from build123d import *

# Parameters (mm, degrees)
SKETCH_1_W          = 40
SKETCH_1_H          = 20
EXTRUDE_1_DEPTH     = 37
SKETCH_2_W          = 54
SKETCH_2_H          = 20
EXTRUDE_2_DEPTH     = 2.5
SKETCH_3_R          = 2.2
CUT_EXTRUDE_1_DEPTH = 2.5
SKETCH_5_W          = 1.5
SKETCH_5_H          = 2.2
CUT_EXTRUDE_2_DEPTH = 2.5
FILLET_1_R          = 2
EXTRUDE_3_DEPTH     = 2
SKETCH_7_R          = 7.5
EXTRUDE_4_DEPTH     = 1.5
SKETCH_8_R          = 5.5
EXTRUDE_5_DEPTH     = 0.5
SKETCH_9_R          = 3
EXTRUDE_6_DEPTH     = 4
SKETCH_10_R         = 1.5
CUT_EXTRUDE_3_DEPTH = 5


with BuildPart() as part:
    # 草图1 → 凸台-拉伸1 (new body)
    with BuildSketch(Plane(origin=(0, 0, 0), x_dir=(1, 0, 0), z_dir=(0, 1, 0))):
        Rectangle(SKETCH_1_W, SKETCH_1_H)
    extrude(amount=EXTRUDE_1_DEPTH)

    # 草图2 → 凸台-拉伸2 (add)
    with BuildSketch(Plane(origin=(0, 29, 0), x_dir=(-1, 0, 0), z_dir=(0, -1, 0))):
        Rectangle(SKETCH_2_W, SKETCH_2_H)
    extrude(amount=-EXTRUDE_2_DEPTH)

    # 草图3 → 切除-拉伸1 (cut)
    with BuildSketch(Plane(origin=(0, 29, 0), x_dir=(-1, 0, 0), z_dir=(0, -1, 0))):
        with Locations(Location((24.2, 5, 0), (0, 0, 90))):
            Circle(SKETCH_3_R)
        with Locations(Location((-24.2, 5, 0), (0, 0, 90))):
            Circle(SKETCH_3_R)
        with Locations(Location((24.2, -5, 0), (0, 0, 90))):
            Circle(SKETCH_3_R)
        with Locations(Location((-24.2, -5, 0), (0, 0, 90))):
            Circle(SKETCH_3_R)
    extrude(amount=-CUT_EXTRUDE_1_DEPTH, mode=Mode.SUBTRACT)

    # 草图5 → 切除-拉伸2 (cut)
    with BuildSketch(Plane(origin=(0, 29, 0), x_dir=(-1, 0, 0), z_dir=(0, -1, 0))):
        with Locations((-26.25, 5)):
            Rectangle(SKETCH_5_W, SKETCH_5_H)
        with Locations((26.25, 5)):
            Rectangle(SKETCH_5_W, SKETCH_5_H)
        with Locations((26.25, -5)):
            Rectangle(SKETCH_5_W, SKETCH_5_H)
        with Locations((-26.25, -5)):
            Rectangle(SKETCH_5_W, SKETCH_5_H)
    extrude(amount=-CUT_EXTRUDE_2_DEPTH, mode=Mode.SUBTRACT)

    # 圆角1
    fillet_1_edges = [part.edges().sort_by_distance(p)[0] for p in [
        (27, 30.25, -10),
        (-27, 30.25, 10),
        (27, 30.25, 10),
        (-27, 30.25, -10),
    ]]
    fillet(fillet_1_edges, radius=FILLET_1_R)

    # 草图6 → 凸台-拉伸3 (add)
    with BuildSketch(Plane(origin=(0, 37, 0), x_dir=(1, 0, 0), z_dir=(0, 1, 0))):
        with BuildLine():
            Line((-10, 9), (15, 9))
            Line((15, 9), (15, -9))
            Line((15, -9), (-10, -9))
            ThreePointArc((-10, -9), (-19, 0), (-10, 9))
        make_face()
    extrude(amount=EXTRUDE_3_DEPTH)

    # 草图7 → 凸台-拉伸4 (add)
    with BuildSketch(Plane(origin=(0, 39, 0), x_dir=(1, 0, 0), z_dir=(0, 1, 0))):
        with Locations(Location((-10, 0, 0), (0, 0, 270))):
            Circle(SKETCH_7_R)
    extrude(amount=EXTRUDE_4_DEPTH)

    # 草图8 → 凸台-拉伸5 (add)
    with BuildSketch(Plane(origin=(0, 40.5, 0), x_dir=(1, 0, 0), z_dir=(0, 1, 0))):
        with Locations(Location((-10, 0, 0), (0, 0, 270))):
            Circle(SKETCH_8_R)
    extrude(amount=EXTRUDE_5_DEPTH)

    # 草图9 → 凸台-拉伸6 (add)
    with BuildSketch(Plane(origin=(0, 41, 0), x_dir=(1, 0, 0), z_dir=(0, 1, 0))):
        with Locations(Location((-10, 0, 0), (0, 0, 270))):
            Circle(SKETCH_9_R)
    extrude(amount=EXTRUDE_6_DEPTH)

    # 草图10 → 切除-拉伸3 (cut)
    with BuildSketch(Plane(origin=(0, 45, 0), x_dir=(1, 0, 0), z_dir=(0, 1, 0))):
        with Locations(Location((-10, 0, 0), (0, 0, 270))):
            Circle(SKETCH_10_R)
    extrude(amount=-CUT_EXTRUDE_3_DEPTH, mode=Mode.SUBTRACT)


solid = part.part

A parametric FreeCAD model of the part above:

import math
import FreeCAD as App
import Part
import Sketcher

V = App.Vector
Q = App.Units.Quantity


def edges_at(feature, points):
    """Names of the edges that pass closest to the given points."""
    edges = feature.Shape.Edges
    near = lambda p: min(range(len(edges)), key=lambda i: edges[i].distToShape(Part.Vertex(*p))[0])
    return sorted({f"Edge{near(p) + 1}" for p in points})

doc = App.newDocument("Part")
body = doc.addObject("PartDesign::Body", "Body")

sketch1 = doc.addObject("Sketcher::SketchObject", "Sketch")
body.addObject(sketch1)
sketch1.AttachmentSupport = (doc.XZ_Plane, [""])
sketch1.MapMode = "FlatFace"
sketch1.addGeometry(Part.LineSegment(V(-20, -10, 0), V(-20, 10, 0)), False)
sketch1.addGeometry(Part.LineSegment(V(-20, 10, 0), V(20, 10, 0)), False)
sketch1.addGeometry(Part.LineSegment(V(20, 10, 0), V(20, -10, 0)), False)
sketch1.addGeometry(Part.LineSegment(V(20, -10, 0), V(-20, -10, 0)), False)
sketch1.addConstraint(Sketcher.Constraint("Coincident", 0, 2, 1, 1))
sketch1.addConstraint(Sketcher.Constraint("Coincident", 1, 2, 2, 1))
sketch1.addConstraint(Sketcher.Constraint("Coincident", 2, 2, 3, 1))
sketch1.addConstraint(Sketcher.Constraint("Coincident", 3, 2, 0, 1))
sketch1.addConstraint(Sketcher.Constraint("Vertical", 0))
sketch1.addConstraint(Sketcher.Constraint("Horizontal", 1))
sketch1.addConstraint(Sketcher.Constraint("Vertical", 2))
sketch1.addConstraint(Sketcher.Constraint("Horizontal", 3))
sketch1.addConstraint(Sketcher.Constraint("Symmetric", 0, 2, 2, 2, -1, 1))
sketch1.addConstraint(Sketcher.Constraint("DistanceX", 1, 1, 1, 2, Q("40 mm")))
sketch1.addConstraint(Sketcher.Constraint("DistanceY", 0, 1, 0, 2, Q("20 mm")))
pad1 = doc.addObject("PartDesign::Pad", "Pad")
body.addObject(pad1)
pad1.Profile = sketch1
pad1.Length = 37
pad1.Reversed = True

sketch2 = doc.addObject("Sketcher::SketchObject", "Sketch001")
body.addObject(sketch2)
sketch2.AttachmentSupport = (doc.XZ_Plane, [""])
sketch2.MapMode = "FlatFace"
sketch2.AttachmentOffset = App.Placement(V(0, 0, -29), App.Rotation())
sketch2.addGeometry(Part.LineSegment(V(27, -10, 0), V(27, 10, 0)), False)
sketch2.addGeometry(Part.LineSegment(V(27, 10, 0), V(-27, 10, 0)), False)
sketch2.addGeometry(Part.LineSegment(V(-27, 10, 0), V(-27, -10, 0)), False)
sketch2.addGeometry(Part.LineSegment(V(-27, -10, 0), V(27, -10, 0)), False)
sketch2.addConstraint(Sketcher.Constraint("Coincident", 0, 2, 1, 1))
sketch2.addConstraint(Sketcher.Constraint("Coincident", 1, 2, 2, 1))
sketch2.addConstraint(Sketcher.Constraint("Coincident", 2, 2, 3, 1))
sketch2.addConstraint(Sketcher.Constraint("Coincident", 3, 2, 0, 1))
sketch2.addConstraint(Sketcher.Constraint("Vertical", 0))
sketch2.addConstraint(Sketcher.Constraint("Horizontal", 1))
sketch2.addConstraint(Sketcher.Constraint("Vertical", 2))
sketch2.addConstraint(Sketcher.Constraint("Horizontal", 3))
sketch2.addConstraint(Sketcher.Constraint("Symmetric", 0, 2, 2, 2, -1, 1))
sketch2.addConstraint(Sketcher.Constraint("DistanceX", 1, 2, 1, 1, Q("54 mm")))
sketch2.addConstraint(Sketcher.Constraint("DistanceY", 0, 1, 0, 2, Q("20 mm")))
pad2 = doc.addObject("PartDesign::Pad", "Pad001")
body.addObject(pad2)
pad2.Profile = sketch2
pad2.Length = 2.5
pad2.Reversed = True

sketch3 = doc.addObject("Sketcher::SketchObject", "Sketch002")
body.addObject(sketch3)
sketch3.AttachmentSupport = (doc.XZ_Plane, [""])
sketch3.MapMode = "FlatFace"
sketch3.AttachmentOffset = App.Placement(V(0, 0, -29), App.Rotation())
sketch3.addGeometry(Part.Circle(V(-24.2, -5, 0), V(0, 0, 1), 2.2), False)
sketch3.addGeometry(Part.Circle(V(24.2, -5, 0), V(0, 0, 1), 2.2), False)
sketch3.addGeometry(Part.Circle(V(-24.2, 5, 0), V(0, 0, 1), 2.2), False)
sketch3.addGeometry(Part.Circle(V(24.2, 5, 0), V(0, 0, 1), 2.2), False)
sketch3.addConstraint(Sketcher.Constraint("Equal", 0, 1))
sketch3.addConstraint(Sketcher.Constraint("Equal", 1, 2))
sketch3.addConstraint(Sketcher.Constraint("Equal", 2, 3))
sketch3.addConstraint(Sketcher.Constraint("Symmetric", 1, 3, 2, 3, -1, 1))
sketch3.addConstraint(Sketcher.Constraint("Symmetric", 0, 3, 3, 3, -1, 1))
sketch3.addConstraint(Sketcher.Constraint("Symmetric", 0, 3, 1, 3, -2))
sketch3.addConstraint(Sketcher.Constraint("Diameter", 0, Q("4.4 mm")))
sketch3.addConstraint(Sketcher.Constraint("DistanceY", 0, 3, -1, 1, Q("5 mm")))
sketch3.addConstraint(Sketcher.Constraint("DistanceX", 0, 3, -1, 1, Q("24.2 mm")))
pocket1 = doc.addObject("PartDesign::Pocket", "Pocket")
body.addObject(pocket1)
pocket1.Profile = sketch3
pocket1.Length = 2.5

sketch4 = doc.addObject("Sketcher::SketchObject", "Sketch003")
body.addObject(sketch4)
sketch4.AttachmentSupport = (doc.XZ_Plane, [""])
sketch4.MapMode = "FlatFace"
sketch4.AttachmentOffset = App.Placement(V(0, 0, -29), App.Rotation())
sketch4.addGeometry(Part.LineSegment(V(27, -6.1, 0), V(27, -3.9, 0)), False)
sketch4.addGeometry(Part.LineSegment(V(27, -3.9, 0), V(25.5, -3.9, 0)), False)
sketch4.addGeometry(Part.LineSegment(V(25.5, -3.9, 0), V(25.5, -6.1, 0)), False)
sketch4.addGeometry(Part.LineSegment(V(25.5, -6.1, 0), V(27, -6.1, 0)), False)
sketch4.addGeometry(Part.LineSegment(V(-25.5, -6.1, 0), V(-25.5, -3.9, 0)), False)
sketch4.addGeometry(Part.LineSegment(V(-25.5, -3.9, 0), V(-27, -3.9, 0)), False)
sketch4.addGeometry(Part.LineSegment(V(-27, -3.9, 0), V(-27, -6.1, 0)), False)
sketch4.addGeometry(Part.LineSegment(V(-27, -6.1, 0), V(-25.5, -6.1, 0)), False)
sketch4.addGeometry(Part.LineSegment(V(-25.5, 3.9, 0), V(-25.5, 6.1, 0)), False)
sketch4.addGeometry(Part.LineSegment(V(-25.5, 6.1, 0), V(-27, 6.1, 0)), False)
sketch4.addGeometry(Part.LineSegment(V(-27, 6.1, 0), V(-27, 3.9, 0)), False)
sketch4.addGeometry(Part.LineSegment(V(-27, 3.9, 0), V(-25.5, 3.9, 0)), False)
sketch4.addGeometry(Part.LineSegment(V(27, 3.9, 0), V(27, 6.1, 0)), False)
sketch4.addGeometry(Part.LineSegment(V(27, 6.1, 0), V(25.5, 6.1, 0)), False)
sketch4.addGeometry(Part.LineSegment(V(25.5, 6.1, 0), V(25.5, 3.9, 0)), False)
sketch4.addGeometry(Part.LineSegment(V(25.5, 3.9, 0), V(27, 3.9, 0)), False)
sketch4.addConstraint(Sketcher.Constraint("Coincident", 0, 2, 1, 1))
sketch4.addConstraint(Sketcher.Constraint("Coincident", 1, 2, 2, 1))
sketch4.addConstraint(Sketcher.Constraint("Coincident", 2, 2, 3, 1))
sketch4.addConstraint(Sketcher.Constraint("Coincident", 3, 2, 0, 1))
sketch4.addConstraint(Sketcher.Constraint("Coincident", 4, 2, 5, 1))
sketch4.addConstraint(Sketcher.Constraint("Coincident", 5, 2, 6, 1))
sketch4.addConstraint(Sketcher.Constraint("Coincident", 6, 2, 7, 1))
sketch4.addConstraint(Sketcher.Constraint("Coincident", 7, 2, 4, 1))
sketch4.addConstraint(Sketcher.Constraint("Coincident", 8, 2, 9, 1))
sketch4.addConstraint(Sketcher.Constraint("Coincident", 9, 2, 10, 1))
sketch4.addConstraint(Sketcher.Constraint("Coincident", 10, 2, 11, 1))
sketch4.addConstraint(Sketcher.Constraint("Coincident", 11, 2, 8, 1))
sketch4.addConstraint(Sketcher.Constraint("Coincident", 12, 2, 13, 1))
sketch4.addConstraint(Sketcher.Constraint("Coincident", 13, 2, 14, 1))
sketch4.addConstraint(Sketcher.Constraint("Coincident", 14, 2, 15, 1))
sketch4.addConstraint(Sketcher.Constraint("Coincident", 15, 2, 12, 1))
sketch4.addConstraint(Sketcher.Constraint("Vertical", 0))
sketch4.addConstraint(Sketcher.Constraint("Horizontal", 1))
sketch4.addConstraint(Sketcher.Constraint("Vertical", 2))
sketch4.addConstraint(Sketcher.Constraint("Horizontal", 3))
sketch4.addConstraint(Sketcher.Constraint("Vertical", 4))
sketch4.addConstraint(Sketcher.Constraint("Horizontal", 5))
sketch4.addConstraint(Sketcher.Constraint("Vertical", 6))
sketch4.addConstraint(Sketcher.Constraint("Horizontal", 7))
sketch4.addConstraint(Sketcher.Constraint("Vertical", 8))
sketch4.addConstraint(Sketcher.Constraint("Horizontal", 9))
sketch4.addConstraint(Sketcher.Constraint("Vertical", 10))
sketch4.addConstraint(Sketcher.Constraint("Horizontal", 11))
sketch4.addConstraint(Sketcher.Constraint("Vertical", 12))
sketch4.addConstraint(Sketcher.Constraint("Horizontal", 13))
sketch4.addConstraint(Sketcher.Constraint("Vertical", 14))
sketch4.addConstraint(Sketcher.Constraint("Horizontal", 15))
sketch4.addConstraint(Sketcher.Constraint("Symmetric", 2, 2, 8, 2, -1, 1))
sketch4.addConstraint(Sketcher.Constraint("Symmetric", 0, 2, 10, 2, -1, 1))
sketch4.addConstraint(Sketcher.Constraint("Symmetric", 6, 2, 12, 2, -1, 1))
sketch4.addConstraint(Sketcher.Constraint("Symmetric", 4, 2, 14, 2, -1, 1))
sketch4.addConstraint(Sketcher.Constraint("Symmetric", 1, 2, 4, 2, -2))
sketch4.addConstraint(Sketcher.Constraint("Symmetric", 3, 2, 6, 2, -2))
sketch4.addConstraint(Sketcher.Constraint("DistanceX", 1, 2, 1, 1, Q("1.5 mm")))
sketch4.addConstraint(Sketcher.Constraint("DistanceY", 0, 1, 0, 2, Q("2.2 mm")))
sketch4.addConstraint(Sketcher.Constraint("DistanceX", -1, 1, 0, 2, Q("27 mm")))
sketch4.addConstraint(Sketcher.Constraint("DistanceY", 4, 2, 8, 2, Q("10 mm")))
pocket2 = doc.addObject("PartDesign::Pocket", "Pocket001")
body.addObject(pocket2)
pocket2.Profile = sketch4
pocket2.Length = 2.5
doc.recompute()

fillet = doc.addObject("PartDesign::Fillet", "Fillet")
body.addObject(fillet)
fillet.Base = (pocket2, edges_at(pocket2, [
    (27, 30.25, -10),
    (-27, 30.25, 10),
    (27, 30.25, 10),
    (-27, 30.25, -10),
]))
fillet.Radius = 2

sketch5 = doc.addObject("Sketcher::SketchObject", "Sketch004")
body.addObject(sketch5)
sketch5.AttachmentSupport = (doc.XZ_Plane, [""])
sketch5.MapMode = "FlatFace"
sketch5.AttachmentOffset = App.Placement(V(0, 0, -37), App.Rotation())
sketch5.addGeometry(Part.LineSegment(V(15, -9, 0), V(-10, -9, 0)), False)
sketch5.addGeometry(Part.ArcOfCircle(Part.Circle(V(-10, 0, 0), V(0, 0, 1), 9), math.radians(90), math.radians(270)), False)
sketch5.addGeometry(Part.LineSegment(V(-10, 9, 0), V(15, 9, 0)), False)
sketch5.addGeometry(Part.LineSegment(V(15, 9, 0), V(15, -9, 0)), False)
sketch5.addConstraint(Sketcher.Constraint("Tangent", 0, 2, 1, 2))
sketch5.addConstraint(Sketcher.Constraint("Tangent", 1, 1, 2, 1))
sketch5.addConstraint(Sketcher.Constraint("Coincident", 2, 2, 3, 1))
sketch5.addConstraint(Sketcher.Constraint("Coincident", 3, 2, 0, 1))
sketch5.addConstraint(Sketcher.Constraint("Horizontal", 0))
sketch5.addConstraint(Sketcher.Constraint("Horizontal", 2))
sketch5.addConstraint(Sketcher.Constraint("Vertical", 3))
sketch5.addConstraint(Sketcher.Constraint("PointOnObject", 1, 3, -1))
sketch5.addConstraint(Sketcher.Constraint("Radius", 1, Q("9 mm")))
sketch5.addConstraint(Sketcher.Constraint("DistanceX", 0, 2, 0, 1, Q("25 mm")))
sketch5.addConstraint(Sketcher.Constraint("DistanceX", 1, 3, -1, 1, Q("10 mm")))
pad3 = doc.addObject("PartDesign::Pad", "Pad002")
body.addObject(pad3)
pad3.Profile = sketch5
pad3.Length = 2
pad3.Reversed = True

sketch6 = doc.addObject("Sketcher::SketchObject", "Sketch005")
body.addObject(sketch6)
sketch6.AttachmentSupport = (doc.XZ_Plane, [""])
sketch6.MapMode = "FlatFace"
sketch6.AttachmentOffset = App.Placement(V(0, 0, -39), App.Rotation())
sketch6.addGeometry(Part.Circle(V(-10, 0, 0), V(0, 0, 1), 8), False)
sketch6.addConstraint(Sketcher.Constraint("PointOnObject", 0, 3, -1))
sketch6.addConstraint(Sketcher.Constraint("Diameter", 0, Q("15 mm")))
sketch6.addConstraint(Sketcher.Constraint("DistanceX", 0, 3, -1, 1, Q("10 mm")))
pad4 = doc.addObject("PartDesign::Pad", "Pad003")
body.addObject(pad4)
pad4.Profile = sketch6
pad4.Length = 1.5
pad4.Reversed = True

sketch7 = doc.addObject("Sketcher::SketchObject", "Sketch006")
body.addObject(sketch7)
sketch7.AttachmentSupport = (doc.XZ_Plane, [""])
sketch7.MapMode = "FlatFace"
sketch7.AttachmentOffset = App.Placement(V(0, 0, -40.5), App.Rotation())
sketch7.addGeometry(Part.Circle(V(-10, 0, 0), V(0, 0, 1), 6), False)
sketch7.addConstraint(Sketcher.Constraint("PointOnObject", 0, 3, -1))
sketch7.addConstraint(Sketcher.Constraint("Diameter", 0, Q("11 mm")))
sketch7.addConstraint(Sketcher.Constraint("DistanceX", 0, 3, -1, 1, Q("10 mm")))
pad5 = doc.addObject("PartDesign::Pad", "Pad004")
body.addObject(pad5)
pad5.Profile = sketch7
pad5.Length = 0.5
pad5.Reversed = True

sketch8 = doc.addObject("Sketcher::SketchObject", "Sketch007")
body.addObject(sketch8)
sketch8.AttachmentSupport = (doc.XZ_Plane, [""])
sketch8.MapMode = "FlatFace"
sketch8.AttachmentOffset = App.Placement(V(0, 0, -41), App.Rotation())
sketch8.addGeometry(Part.Circle(V(-10, 0, 0), V(0, 0, 1), 3), False)
sketch8.addConstraint(Sketcher.Constraint("PointOnObject", 0, 3, -1))
sketch8.addConstraint(Sketcher.Constraint("Diameter", 0, Q("6 mm")))
sketch8.addConstraint(Sketcher.Constraint("DistanceX", 0, 3, -1, 1, Q("10 mm")))
pad6 = doc.addObject("PartDesign::Pad", "Pad005")
body.addObject(pad6)
pad6.Profile = sketch8
pad6.Length = 4
pad6.Reversed = True

sketch9 = doc.addObject("Sketcher::SketchObject", "Sketch008")
body.addObject(sketch9)
sketch9.AttachmentSupport = (doc.XZ_Plane, [""])
sketch9.MapMode = "FlatFace"
sketch9.AttachmentOffset = App.Placement(V(0, 0, -45), App.Rotation())
sketch9.addGeometry(Part.Circle(V(-10, 0, 0), V(0, 0, 1), 1.5), False)
sketch9.addConstraint(Sketcher.Constraint("PointOnObject", 0, 3, -1))
sketch9.addConstraint(Sketcher.Constraint("Diameter", 0, Q("3 mm")))
sketch9.addConstraint(Sketcher.Constraint("DistanceX", 0, 3, -1, 1, Q("10 mm")))
pocket3 = doc.addObject("PartDesign::Pocket", "Pocket002")
body.addObject(pocket3)
pocket3.Profile = sketch9
pocket3.Length = 5
pocket3.Reversed = True

doc.recompute()
